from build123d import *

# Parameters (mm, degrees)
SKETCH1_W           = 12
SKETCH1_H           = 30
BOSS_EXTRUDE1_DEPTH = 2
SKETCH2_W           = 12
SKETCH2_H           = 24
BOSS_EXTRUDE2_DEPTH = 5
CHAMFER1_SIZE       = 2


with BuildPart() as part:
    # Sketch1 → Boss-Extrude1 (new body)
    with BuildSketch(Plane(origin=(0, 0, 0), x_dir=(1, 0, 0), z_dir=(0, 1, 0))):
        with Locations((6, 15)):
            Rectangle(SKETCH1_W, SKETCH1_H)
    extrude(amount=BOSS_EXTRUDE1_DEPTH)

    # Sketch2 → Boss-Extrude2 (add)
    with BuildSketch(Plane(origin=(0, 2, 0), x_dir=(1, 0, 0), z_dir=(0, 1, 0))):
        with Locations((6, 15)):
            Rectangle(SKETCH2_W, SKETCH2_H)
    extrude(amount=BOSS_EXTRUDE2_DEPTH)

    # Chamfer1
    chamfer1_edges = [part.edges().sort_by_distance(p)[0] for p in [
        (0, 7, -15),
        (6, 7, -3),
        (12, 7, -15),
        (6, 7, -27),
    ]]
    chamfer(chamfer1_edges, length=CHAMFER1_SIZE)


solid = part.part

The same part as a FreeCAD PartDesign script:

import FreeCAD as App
import Part
import Sketcher
Q = App.Units.Quantity


def edges_at(feature, points):
    """Names of the edges that pass closest to the given points."""
    edges = feature.Shape.Edges
    near = lambda p: min(range(len(edges)), key=lambda i: edges[i].distToShape(Part.Vertex(*p))[0])
    return sorted({f"Edge{near(p) + 1}" for p in points})


def add_polygon(sketch, points):
    """Adds a closed chain of lines whose ends are joined by coincident constraints."""
    first, n = sketch.GeometryCount, len(points)
    for a, b in zip(points, points[1:] + points[:1]):
        sketch.addGeometry(Part.LineSegment(App.Vector(*a, 0), App.Vector(*b, 0)), False)
    for i in range(n):
        sketch.addConstraint(Sketcher.Constraint("Coincident", first + i, 2, first + (i + 1) % n, 1))

doc = App.newDocument("Part")
body = doc.addObject("PartDesign::Body", "Body")

# Sketch on XZ plane
sketch1 = body.newObject("Sketcher::SketchObject", "Sketch")
sketch1.AttachmentSupport = (doc.getObject("XZ_Plane"), [""])
sketch1.MapMode = "FlatFace"
add_polygon(sketch1, [(0, -30), (0, 0), (12, 0), (12, -30)])  # lines 0-3
sketch1.addConstraint(Sketcher.Constraint("Vertical", 0))
sketch1.addConstraint(Sketcher.Constraint("Horizontal", 1))
sketch1.addConstraint(Sketcher.Constraint("Vertical", 2))
sketch1.addConstraint(Sketcher.Constraint("Horizontal", 3))
sketch1.addConstraint(Sketcher.Constraint("Coincident", 0, 2, -1, 1))
sketch1.addConstraint(Sketcher.Constraint("DistanceX", 1, 1, 1, 2, Q("12 mm")))
sketch1.addConstraint(Sketcher.Constraint("DistanceY", 0, 1, 0, 2, Q("30 mm")))
pad1 = body.newObject("PartDesign::Pad", "Pad")
pad1.Profile = sketch1
pad1.Length = 2
pad1.Reversed = True

# Sketch on XZ plane
sketch2 = body.newObject("Sketcher::SketchObject", "Sketch001")
sketch2.AttachmentSupport = (doc.getObject("XZ_Plane"), [""])
sketch2.MapMode = "FlatFace"
sketch2.AttachmentOffset = App.Placement(App.Vector(0, 0, -2), App.Rotation())
add_polygon(sketch2, [(0, -27), (0, -3), (12, -3), (12, -27)])  # lines 0-3
sketch2.addConstraint(Sketcher.Constraint("Vertical", 0))
sketch2.addConstraint(Sketcher.Constraint("Horizontal", 1))
sketch2.addConstraint(Sketcher.Constraint("Vertical", 2))
sketch2.addConstraint(Sketcher.Constraint("Horizontal", 3))
sketch2.addConstraint(Sketcher.Constraint("PointOnObject", 0, 2, -2))
sketch2.addConstraint(Sketcher.Constraint("DistanceX", 1, 1, 1, 2, Q("12 mm")))
sketch2.addConstraint(Sketcher.Constraint("DistanceY", 0, 1, 0, 2, Q("24 mm")))
sketch2.addConstraint(Sketcher.Constraint("DistanceY", 0, 2, -1, 1, Q("3 mm")))
pad2 = body.newObject("PartDesign::Pad", "Pad001")
pad2.Profile = sketch2
pad2.Length = 5
pad2.Reversed = True
doc.recompute()

chamfer = body.newObject("PartDesign::Chamfer", "Chamfer")
chamfer.Base = (pad2, edges_at(pad2, [
    (0, 7, -15),
    (6, 7, -3),
    (12, 7, -15),
    (6, 7, -27),
]))
chamfer.Size = 2

doc.recompute()
